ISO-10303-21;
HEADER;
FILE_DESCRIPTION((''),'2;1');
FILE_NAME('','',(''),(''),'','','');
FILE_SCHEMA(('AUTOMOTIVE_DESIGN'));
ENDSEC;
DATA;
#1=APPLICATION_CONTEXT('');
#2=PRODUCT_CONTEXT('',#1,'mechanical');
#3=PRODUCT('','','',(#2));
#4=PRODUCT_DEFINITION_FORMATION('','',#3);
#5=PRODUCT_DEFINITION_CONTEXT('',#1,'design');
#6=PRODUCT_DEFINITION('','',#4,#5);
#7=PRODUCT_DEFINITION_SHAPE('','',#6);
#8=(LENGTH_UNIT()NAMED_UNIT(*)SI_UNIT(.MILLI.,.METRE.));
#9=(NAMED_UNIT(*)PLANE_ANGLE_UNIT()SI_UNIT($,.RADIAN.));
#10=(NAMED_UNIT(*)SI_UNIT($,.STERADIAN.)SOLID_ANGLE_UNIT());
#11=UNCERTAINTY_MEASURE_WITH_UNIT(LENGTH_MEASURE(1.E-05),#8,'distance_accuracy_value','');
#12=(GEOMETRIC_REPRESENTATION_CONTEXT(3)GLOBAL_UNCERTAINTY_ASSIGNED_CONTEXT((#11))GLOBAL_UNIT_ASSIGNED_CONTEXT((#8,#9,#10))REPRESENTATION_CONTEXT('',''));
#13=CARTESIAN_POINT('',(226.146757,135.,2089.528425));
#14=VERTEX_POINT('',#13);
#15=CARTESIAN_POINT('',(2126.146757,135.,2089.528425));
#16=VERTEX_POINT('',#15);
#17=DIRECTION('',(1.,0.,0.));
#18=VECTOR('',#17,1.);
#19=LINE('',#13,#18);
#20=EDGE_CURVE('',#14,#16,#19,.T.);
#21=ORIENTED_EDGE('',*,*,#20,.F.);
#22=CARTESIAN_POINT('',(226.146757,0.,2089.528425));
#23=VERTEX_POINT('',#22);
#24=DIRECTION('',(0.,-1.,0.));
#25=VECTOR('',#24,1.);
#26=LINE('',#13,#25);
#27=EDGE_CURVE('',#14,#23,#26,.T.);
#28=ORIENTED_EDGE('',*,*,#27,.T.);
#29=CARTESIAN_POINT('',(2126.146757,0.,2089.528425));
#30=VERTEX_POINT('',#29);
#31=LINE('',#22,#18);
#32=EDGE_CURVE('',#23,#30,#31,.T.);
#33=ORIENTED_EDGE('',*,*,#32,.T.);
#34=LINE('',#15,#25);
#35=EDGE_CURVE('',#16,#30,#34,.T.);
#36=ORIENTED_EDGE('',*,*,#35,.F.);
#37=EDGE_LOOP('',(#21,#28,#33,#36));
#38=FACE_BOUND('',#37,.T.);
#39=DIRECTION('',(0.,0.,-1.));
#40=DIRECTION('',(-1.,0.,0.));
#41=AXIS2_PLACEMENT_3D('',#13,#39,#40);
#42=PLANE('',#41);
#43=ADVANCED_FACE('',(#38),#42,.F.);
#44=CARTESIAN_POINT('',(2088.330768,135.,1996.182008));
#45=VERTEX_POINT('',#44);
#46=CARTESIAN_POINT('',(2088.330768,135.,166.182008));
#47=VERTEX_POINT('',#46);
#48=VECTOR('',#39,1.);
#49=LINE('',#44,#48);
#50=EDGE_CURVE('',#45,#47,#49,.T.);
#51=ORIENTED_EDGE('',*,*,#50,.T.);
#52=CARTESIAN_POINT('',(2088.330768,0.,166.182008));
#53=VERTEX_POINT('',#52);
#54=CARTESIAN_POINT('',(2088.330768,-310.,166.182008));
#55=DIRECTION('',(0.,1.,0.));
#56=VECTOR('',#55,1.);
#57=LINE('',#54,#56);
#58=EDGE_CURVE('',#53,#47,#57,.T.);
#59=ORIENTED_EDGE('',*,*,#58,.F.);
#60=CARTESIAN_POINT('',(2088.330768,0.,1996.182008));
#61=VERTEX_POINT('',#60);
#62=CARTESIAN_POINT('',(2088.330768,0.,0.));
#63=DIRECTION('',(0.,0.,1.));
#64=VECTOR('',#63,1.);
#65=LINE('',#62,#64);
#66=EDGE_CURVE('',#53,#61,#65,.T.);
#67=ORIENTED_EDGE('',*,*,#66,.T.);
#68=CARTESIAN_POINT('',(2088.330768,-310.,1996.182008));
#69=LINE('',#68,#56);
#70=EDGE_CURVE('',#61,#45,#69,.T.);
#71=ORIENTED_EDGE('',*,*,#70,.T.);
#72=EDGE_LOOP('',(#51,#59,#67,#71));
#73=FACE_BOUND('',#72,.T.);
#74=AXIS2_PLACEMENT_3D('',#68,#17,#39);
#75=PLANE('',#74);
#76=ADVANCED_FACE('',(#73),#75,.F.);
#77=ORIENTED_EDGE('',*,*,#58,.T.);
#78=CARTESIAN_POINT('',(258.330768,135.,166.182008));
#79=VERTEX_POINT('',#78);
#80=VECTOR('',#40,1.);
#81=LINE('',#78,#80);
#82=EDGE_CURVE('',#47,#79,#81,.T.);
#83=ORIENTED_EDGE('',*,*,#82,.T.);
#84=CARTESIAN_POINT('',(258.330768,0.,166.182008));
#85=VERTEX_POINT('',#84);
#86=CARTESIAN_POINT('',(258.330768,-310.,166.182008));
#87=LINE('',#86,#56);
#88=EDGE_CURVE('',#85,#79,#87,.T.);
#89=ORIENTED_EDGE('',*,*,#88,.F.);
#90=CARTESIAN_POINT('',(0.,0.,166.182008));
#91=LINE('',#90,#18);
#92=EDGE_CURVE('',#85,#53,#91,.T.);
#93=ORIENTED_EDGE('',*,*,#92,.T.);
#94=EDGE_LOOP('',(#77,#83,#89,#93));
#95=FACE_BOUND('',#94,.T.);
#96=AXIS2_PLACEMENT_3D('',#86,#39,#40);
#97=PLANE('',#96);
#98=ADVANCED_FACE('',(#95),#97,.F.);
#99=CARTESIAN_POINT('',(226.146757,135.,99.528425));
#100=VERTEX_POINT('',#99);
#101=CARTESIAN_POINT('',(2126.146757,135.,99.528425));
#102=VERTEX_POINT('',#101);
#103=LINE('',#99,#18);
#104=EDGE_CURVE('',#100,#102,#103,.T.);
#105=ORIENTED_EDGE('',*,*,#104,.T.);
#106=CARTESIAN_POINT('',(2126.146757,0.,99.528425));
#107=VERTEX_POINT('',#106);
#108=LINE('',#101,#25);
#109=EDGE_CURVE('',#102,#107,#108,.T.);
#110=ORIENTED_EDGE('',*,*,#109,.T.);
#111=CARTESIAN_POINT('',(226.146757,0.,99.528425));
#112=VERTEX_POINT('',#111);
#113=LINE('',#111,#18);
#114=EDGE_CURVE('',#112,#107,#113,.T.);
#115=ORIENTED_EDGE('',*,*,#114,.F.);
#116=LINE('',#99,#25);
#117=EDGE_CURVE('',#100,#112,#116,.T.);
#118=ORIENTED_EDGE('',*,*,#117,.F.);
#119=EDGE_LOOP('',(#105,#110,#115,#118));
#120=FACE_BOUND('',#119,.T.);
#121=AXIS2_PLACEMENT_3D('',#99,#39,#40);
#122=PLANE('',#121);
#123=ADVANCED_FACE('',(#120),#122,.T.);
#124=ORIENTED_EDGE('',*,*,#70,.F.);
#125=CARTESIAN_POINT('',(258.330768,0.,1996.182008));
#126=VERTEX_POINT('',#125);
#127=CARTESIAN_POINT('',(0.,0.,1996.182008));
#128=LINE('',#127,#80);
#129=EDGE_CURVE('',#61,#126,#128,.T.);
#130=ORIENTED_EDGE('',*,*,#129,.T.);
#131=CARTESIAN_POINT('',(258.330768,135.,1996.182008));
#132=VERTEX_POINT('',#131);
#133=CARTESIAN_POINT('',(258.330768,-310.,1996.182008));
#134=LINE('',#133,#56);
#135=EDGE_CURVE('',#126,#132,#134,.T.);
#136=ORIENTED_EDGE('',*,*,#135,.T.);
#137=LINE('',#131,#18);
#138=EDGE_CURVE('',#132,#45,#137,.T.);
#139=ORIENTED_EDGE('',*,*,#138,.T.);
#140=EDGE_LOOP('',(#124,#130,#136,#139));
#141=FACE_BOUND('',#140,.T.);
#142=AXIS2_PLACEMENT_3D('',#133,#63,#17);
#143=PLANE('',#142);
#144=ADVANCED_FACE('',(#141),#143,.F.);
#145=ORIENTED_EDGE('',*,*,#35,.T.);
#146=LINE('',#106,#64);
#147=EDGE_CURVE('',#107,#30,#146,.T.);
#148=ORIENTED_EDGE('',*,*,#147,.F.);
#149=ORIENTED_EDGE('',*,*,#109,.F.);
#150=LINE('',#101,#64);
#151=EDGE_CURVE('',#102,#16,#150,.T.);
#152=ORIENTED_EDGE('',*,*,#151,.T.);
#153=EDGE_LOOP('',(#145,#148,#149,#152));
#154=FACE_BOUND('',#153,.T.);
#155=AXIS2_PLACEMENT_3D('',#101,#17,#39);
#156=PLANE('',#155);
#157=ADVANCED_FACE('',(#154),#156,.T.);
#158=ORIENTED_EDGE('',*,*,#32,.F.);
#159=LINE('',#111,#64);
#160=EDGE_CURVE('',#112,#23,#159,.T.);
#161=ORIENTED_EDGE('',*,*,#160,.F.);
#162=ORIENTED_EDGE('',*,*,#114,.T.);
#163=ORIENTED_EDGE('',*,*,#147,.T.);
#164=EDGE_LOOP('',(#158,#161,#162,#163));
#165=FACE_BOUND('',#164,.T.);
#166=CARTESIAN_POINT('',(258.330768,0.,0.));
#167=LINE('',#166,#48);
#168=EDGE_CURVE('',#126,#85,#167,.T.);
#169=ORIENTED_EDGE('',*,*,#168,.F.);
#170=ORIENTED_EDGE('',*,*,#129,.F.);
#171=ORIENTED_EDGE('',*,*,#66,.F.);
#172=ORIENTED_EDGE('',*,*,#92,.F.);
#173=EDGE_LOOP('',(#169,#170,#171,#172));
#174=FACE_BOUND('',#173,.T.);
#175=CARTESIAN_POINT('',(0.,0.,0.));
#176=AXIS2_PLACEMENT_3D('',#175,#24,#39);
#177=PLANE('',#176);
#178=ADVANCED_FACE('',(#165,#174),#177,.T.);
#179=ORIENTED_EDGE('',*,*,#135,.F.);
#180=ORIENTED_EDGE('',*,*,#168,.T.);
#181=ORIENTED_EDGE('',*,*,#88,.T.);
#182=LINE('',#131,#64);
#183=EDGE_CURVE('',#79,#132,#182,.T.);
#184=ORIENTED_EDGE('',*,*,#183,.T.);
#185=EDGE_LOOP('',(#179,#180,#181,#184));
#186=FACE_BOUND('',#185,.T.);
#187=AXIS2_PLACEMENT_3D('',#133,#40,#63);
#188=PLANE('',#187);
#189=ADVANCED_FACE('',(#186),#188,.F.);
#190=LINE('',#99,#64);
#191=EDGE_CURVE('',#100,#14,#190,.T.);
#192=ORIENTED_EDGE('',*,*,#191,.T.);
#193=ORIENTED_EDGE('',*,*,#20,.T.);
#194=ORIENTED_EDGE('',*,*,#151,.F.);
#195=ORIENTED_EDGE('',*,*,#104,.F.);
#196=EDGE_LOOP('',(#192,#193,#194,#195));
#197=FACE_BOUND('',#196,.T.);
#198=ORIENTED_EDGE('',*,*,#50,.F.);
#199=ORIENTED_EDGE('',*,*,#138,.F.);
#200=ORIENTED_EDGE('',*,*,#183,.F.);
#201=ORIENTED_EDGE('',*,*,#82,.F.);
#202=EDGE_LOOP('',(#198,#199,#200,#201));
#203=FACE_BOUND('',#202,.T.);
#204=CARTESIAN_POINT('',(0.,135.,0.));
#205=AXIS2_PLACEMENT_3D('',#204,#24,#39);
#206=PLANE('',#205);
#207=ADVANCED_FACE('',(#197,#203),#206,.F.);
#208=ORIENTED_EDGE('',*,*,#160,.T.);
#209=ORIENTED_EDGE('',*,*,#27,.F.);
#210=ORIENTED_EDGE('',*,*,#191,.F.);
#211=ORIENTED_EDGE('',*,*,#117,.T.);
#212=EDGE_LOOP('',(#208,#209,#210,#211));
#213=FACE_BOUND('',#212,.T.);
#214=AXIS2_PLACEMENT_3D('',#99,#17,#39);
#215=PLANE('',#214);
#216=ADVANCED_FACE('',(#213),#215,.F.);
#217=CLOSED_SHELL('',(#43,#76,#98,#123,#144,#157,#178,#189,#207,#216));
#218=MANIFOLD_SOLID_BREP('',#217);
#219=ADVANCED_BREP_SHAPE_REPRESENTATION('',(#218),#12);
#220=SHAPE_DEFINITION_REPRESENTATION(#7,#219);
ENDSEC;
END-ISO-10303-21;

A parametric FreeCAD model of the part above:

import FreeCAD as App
import Part
import Sketcher
from FreeCAD import Vector
Q = App.Units.Quantity


def add_polygon(sketch, points):
    """Adds a closed chain of lines whose ends are joined by coincident constraints."""
    first, n = sketch.GeometryCount, len(points)
    for a, b in zip(points, points[1:] + points[:1]):
        sketch.addGeometry(Part.LineSegment(App.Vector(*a, 0), App.Vector(*b, 0)), False)
    for i in range(n):
        sketch.addConstraint(Sketcher.Constraint("Coincident", first + i, 2, first + (i + 1) % n, 1))

doc = App.newDocument("Part")
body = doc.addObject("PartDesign::Body", "Body")

# Sketch on XZ plane
sketch1 = body.newObject("Sketcher::SketchObject", "Sketch")
sketch1.AttachmentSupport = (doc.getObject("XZ_Plane"), [""])
sketch1.MapMode = "FlatFace"
add_polygon(sketch1, [(226.146757, 99.528425), (226.146757, 2089.528425), (2126.146757, 2089.528425), (2126.146757, 99.528425)])  # lines 0-3
sketch1.addConstraint([
    Sketcher.Constraint("Vertical", 0),
    Sketcher.Constraint("Horizontal", 1),
    Sketcher.Constraint("Vertical", 2),
    Sketcher.Constraint("Horizontal", 3),
    Sketcher.Constraint("DistanceX", 1, 1, 1, 2, Q("1900 mm")),
    Sketcher.Constraint("DistanceY", 0, 1, 0, 2, Q("1990 mm")),
    Sketcher.Constraint("DistanceX", -1, 1, 0, 2, Q("226.146757 mm")),
    Sketcher.Constraint("DistanceY", -1, 1, 0, 2, Q("2089.528425 mm")),
])
pad1 = body.newObject("PartDesign::Pad", "Pad")
pad1.Profile = sketch1
pad1.Length = 135
pad1.Reversed = True

# Sketch on XZ plane
sketch2 = body.newObject("Sketcher::SketchObject", "Sketch001")
sketch2.AttachmentSupport = (doc.getObject("XZ_Plane"), [""])
sketch2.MapMode = "FlatFace"
sketch2.AttachmentOffset = App.Placement(Vector(0, 0, -135), App.Rotation())
add_polygon(sketch2, [(258.330768, 166.182008), (258.330768, 1996.182008), (2088.330768, 1996.182008), (2088.330768, 166.182008)])  # lines 0-3
sketch2.addConstraint([
    Sketcher.Constraint("Vertical", 0),
    Sketcher.Constraint("Horizontal", 1),
    Sketcher.Constraint("Vertical", 2),
    Sketcher.Constraint("Horizontal", 3),
    Sketcher.Constraint("Equal", 3, 0),
    Sketcher.Constraint("DistanceX", 1, 1, 1, 2, Q("1830 mm")),
    Sketcher.Constraint("DistanceY", -1, 1, 0, 2, Q("1996.182008 mm")),
    Sketcher.Constraint("DistanceX", -1, 1, 0, 2, Q("258.330768 mm")),
])
pocket1 = body.newObject("PartDesign::Pocket", "Pocket")
pocket1.Profile = sketch2
pocket1.Length = 445
pocket1.Reversed = True

doc.recompute()
